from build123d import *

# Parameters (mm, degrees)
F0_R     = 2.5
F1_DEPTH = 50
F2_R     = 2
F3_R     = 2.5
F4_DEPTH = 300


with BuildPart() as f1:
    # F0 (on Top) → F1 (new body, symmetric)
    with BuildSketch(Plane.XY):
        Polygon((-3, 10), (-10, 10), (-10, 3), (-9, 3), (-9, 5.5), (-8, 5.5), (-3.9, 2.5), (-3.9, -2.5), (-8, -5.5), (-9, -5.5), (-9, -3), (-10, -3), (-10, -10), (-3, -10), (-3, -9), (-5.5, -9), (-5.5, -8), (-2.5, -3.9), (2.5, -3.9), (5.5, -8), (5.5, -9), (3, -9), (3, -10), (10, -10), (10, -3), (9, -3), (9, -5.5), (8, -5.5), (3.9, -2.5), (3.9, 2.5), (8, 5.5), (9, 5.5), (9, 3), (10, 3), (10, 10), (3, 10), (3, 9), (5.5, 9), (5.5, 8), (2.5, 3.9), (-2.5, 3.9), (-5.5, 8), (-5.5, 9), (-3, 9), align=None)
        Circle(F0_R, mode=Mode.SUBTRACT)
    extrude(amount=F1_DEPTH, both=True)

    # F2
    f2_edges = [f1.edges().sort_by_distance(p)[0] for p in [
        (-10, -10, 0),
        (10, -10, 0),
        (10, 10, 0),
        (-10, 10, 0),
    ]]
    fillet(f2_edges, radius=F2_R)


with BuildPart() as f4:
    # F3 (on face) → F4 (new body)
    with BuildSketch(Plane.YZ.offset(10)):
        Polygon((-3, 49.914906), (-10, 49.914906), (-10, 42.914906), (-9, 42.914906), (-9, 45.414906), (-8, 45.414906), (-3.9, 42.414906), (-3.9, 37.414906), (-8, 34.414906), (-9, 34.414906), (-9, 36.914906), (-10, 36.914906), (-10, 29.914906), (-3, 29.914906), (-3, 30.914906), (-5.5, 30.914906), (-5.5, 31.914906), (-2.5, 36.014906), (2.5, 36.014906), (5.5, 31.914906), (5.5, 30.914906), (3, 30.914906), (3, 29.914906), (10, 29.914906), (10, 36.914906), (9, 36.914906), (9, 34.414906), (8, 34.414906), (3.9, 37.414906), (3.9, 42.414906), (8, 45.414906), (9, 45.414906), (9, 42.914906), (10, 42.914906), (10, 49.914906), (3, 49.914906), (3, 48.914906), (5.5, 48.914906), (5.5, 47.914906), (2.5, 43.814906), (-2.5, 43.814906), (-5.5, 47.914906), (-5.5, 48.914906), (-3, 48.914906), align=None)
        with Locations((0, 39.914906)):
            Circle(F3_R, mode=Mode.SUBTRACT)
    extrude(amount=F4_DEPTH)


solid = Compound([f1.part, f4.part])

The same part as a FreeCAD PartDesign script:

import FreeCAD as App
import Part
import Sketcher
from FreeCAD import Vector


def edges_at(feature, points):
    """Names of the edges that pass closest to the given points."""
    edges = feature.Shape.Edges
    near = lambda p: min(range(len(edges)), key=lambda i: edges[i].distToShape(Part.Vertex(*p))[0])
    return sorted({f"Edge{near(p) + 1}" for p in points})

doc = App.newDocument("Part")
body = doc.addObject("PartDesign::Body", "Body")

# Sketch on XY plane
sketch1 = body.newObject("Sketcher::SketchObject", "Sketch")
sketch1.AttachmentSupport = (doc.getObject("XY_Plane"), [""])
sketch1.MapMode = "FlatFace"
sketch1.addGeometry(Part.LineSegment(Vector(-3, 10, 0), Vector(-10, 10, 0)), False)
sketch1.addGeometry(Part.LineSegment(Vector(-10, 10, 0), Vector(-10, 3, 0)), False)
sketch1.addGeometry(Part.LineSegment(Vector(-10, 3, 0), Vector(-9, 3, 0)), False)
sketch1.addGeometry(Part.LineSegment(Vector(-9, 3, 0), Vector(-9, 5.5, 0)), False)
sketch1.addGeometry(Part.LineSegment(Vector(-9, 5.5, 0), Vector(-8, 5.5, 0)), False)
sketch1.addGeometry(Part.LineSegment(Vector(-8, 5.5, 0), Vector(-3.9, 2.5, 0)), False)
sketch1.addGeometry(Part.LineSegment(Vector(-3.9, 2.5, 0), Vector(-3.9, -2.5, 0)), False)
sketch1.addGeometry(Part.LineSegment(Vector(-3.9, -2.5, 0), Vector(-8, -5.5, 0)), False)
sketch1.addGeometry(Part.LineSegment(Vector(-8, -5.5, 0), Vector(-9, -5.5, 0)), False)
sketch1.addGeometry(Part.LineSegment(Vector(-9, -5.5, 0), Vector(-9, -3, 0)), False)
sketch1.addGeometry(Part.LineSegment(Vector(-9, -3, 0), Vector(-10, -3, 0)), False)
sketch1.addGeometry(Part.LineSegment(Vector(-10, -3, 0), Vector(-10, -10, 0)), False)
sketch1.addGeometry(Part.LineSegment(Vector(-10, -10, 0), Vector(-3, -10, 0)), False)
sketch1.addGeometry(Part.LineSegment(Vector(-3, -10, 0), Vector(-3, -9, 0)), False)
sketch1.addGeometry(Part.LineSegment(Vector(-3, -9, 0), Vector(-5.5, -9, 0)), False)
sketch1.addGeometry(Part.LineSegment(Vector(-5.5, -9, 0), Vector(-5.5, -8, 0)), False)
sketch1.addGeometry(Part.LineSegment(Vector(-5.5, -8, 0), Vector(-2.5, -3.9, 0)), False)
sketch1.addGeometry(Part.LineSegment(Vector(-2.5, -3.9, 0), Vector(2.5, -3.9, 0)), False)
sketch1.addGeometry(Part.LineSegment(Vector(2.5, -3.9, 0), Vector(5.5, -8, 0)), False)
sketch1.addGeometry(Part.LineSegment(Vector(5.5, -8, 0), Vector(5.5, -9, 0)), False)
sketch1.addGeometry(Part.LineSegment(Vector(5.5, -9, 0), Vector(3, -9, 0)), False)
sketch1.addGeometry(Part.LineSegment(Vector(3, -9, 0), Vector(3, -10, 0)), False)
sketch1.addGeometry(Part.LineSegment(Vector(3, -10, 0), Vector(10, -10, 0)), False)
sketch1.addGeometry(Part.LineSegment(Vector(10, -10, 0), Vector(10, -3, 0)), False)
sketch1.addGeometry(Part.LineSegment(Vector(10, -3, 0), Vector(9, -3, 0)), False)
sketch1.addGeometry(Part.LineSegment(Vector(9, -3, 0), Vector(9, -5.5, 0)), False)
sketch1.addGeometry(Part.LineSegment(Vector(9, -5.5, 0), Vector(8, -5.5, 0)), False)
sketch1.addGeometry(Part.LineSegment(Vector(8, -5.5, 0), Vector(3.9, -2.5, 0)), False)
sketch1.addGeometry(Part.LineSegment(Vector(3.9, -2.5, 0), Vector(3.9, 2.5, 0)), False)
sketch1.addGeometry(Part.LineSegment(Vector(3.9, 2.5, 0), Vector(8, 5.5, 0)), False)
sketch1.addGeometry(Part.LineSegment(Vector(8, 5.5, 0), Vector(9, 5.5, 0)), False)
sketch1.addGeometry(Part.LineSegment(Vector(9, 5.5, 0), Vector(9, 3, 0)), False)
sketch1.addGeometry(Part.LineSegment(Vector(9, 3, 0), Vector(10, 3, 0)), False)
sketch1.addGeometry(Part.LineSegment(Vector(10, 3, 0), Vector(10, 10, 0)), False)
sketch1.addGeometry(Part.LineSegment(Vector(10, 10, 0), Vector(3, 10, 0)), False)
sketch1.addGeometry(Part.LineSegment(Vector(3, 10, 0), Vector(3, 9, 0)), False)
sketch1.addGeometry(Part.LineSegment(Vector(3, 9, 0), Vector(5.5, 9, 0)), False)
sketch1.addGeometry(Part.LineSegment(Vector(5.5, 9, 0), Vector(5.5, 8, 0)), False)
sketch1.addGeometry(Part.LineSegment(Vector(5.5, 8, 0), Vector(2.5, 3.9, 0)), False)
sketch1.addGeometry(Part.LineSegment(Vector(2.5, 3.9, 0), Vector(-2.5, 3.9, 0)), False)
sketch1.addGeometry(Part.LineSegment(Vector(-2.5, 3.9, 0), Vector(-5.5, 8, 0)), False)
sketch1.addGeometry(Part.LineSegment(Vector(-5.5, 8, 0), Vector(-5.5, 9, 0)), False)
sketch1.addGeometry(Part.LineSegment(Vector(-5.5, 9, 0), Vector(-3, 9, 0)), False)
sketch1.addGeometry(Part.LineSegment(Vector(-3, 9, 0), Vector(-3, 10, 0)), False)
sketch1.addGeometry(Part.Circle(Vector(0, 0, 0), Vector(0, 0, 1), 2.5), False)
sketch1.addConstraint(Sketcher.Constraint("Coincident", 0, 2, 1, 1))
sketch1.addConstraint(Sketcher.Constraint("Coincident", 1, 2, 2, 1))
sketch1.addConstraint(Sketcher.Constraint("Coincident", 2, 2, 3, 1))
sketch1.addConstraint(Sketcher.Constraint("Coincident", 3, 2, 4, 1))
sketch1.addConstraint(Sketcher.Constraint("Coincident", 4, 2, 5, 1))
sketch1.addConstraint(Sketcher.Constraint("Coincident", 5, 2, 6, 1))
sketch1.addConstraint(Sketcher.Constraint("Coincident", 6, 2, 7, 1))
sketch1.addConstraint(Sketcher.Constraint("Coincident", 7, 2, 8, 1))
sketch1.addConstraint(Sketcher.Constraint("Coincident", 8, 2, 9, 1))
sketch1.addConstraint(Sketcher.Constraint("Coincident", 9, 2, 10, 1))
sketch1.addConstraint(Sketcher.Constraint("Coincident", 10, 2, 11, 1))
sketch1.addConstraint(Sketcher.Constraint("Coincident", 11, 2, 12, 1))
sketch1.addConstraint(Sketcher.Constraint("Coincident", 12, 2, 13, 1))
sketch1.addConstraint(Sketcher.Constraint("Coincident", 13, 2, 14, 1))
sketch1.addConstraint(Sketcher.Constraint("Coincident", 14, 2, 15, 1))
sketch1.addConstraint(Sketcher.Constraint("Coincident", 15, 2, 16, 1))
sketch1.addConstraint(Sketcher.Constraint("Coincident", 16, 2, 17, 1))
sketch1.addConstraint(Sketcher.Constraint("Coincident", 17, 2, 18, 1))
sketch1.addConstraint(Sketcher.Constraint("Coincident", 18, 2, 19, 1))
sketch1.addConstraint(Sketcher.Constraint("Coincident", 19, 2, 20, 1))
sketch1.addConstraint(Sketcher.Constraint("Coincident", 20, 2, 21, 1))
sketch1.addConstraint(Sketcher.Constraint("Coincident", 21, 2, 22, 1))
sketch1.addConstraint(Sketcher.Constraint("Coincident", 22, 2, 23, 1))
sketch1.addConstraint(Sketcher.Constraint("Coincident", 23, 2, 24, 1))
sketch1.addConstraint(Sketcher.Constraint("Coincident", 24, 2, 25, 1))
sketch1.addConstraint(Sketcher.Constraint("Coincident", 25, 2, 26, 1))
sketch1.addConstraint(Sketcher.Constraint("Coincident", 26, 2, 27, 1))
sketch1.addConstraint(Sketcher.Constraint("Coincident", 27, 2, 28, 1))
sketch1.addConstraint(Sketcher.Constraint("Coincident", 28, 2, 29, 1))
sketch1.addConstraint(Sketcher.Constraint("Coincident", 29, 2, 30, 1))
sketch1.addConstraint(Sketcher.Constraint("Coincident", 30, 2, 31, 1))
sketch1.addConstraint(Sketcher.Constraint("Coincident", 31, 2, 32, 1))
sketch1.addConstraint(Sketcher.Constraint("Coincident", 32, 2, 33, 1))
sketch1.addConstraint(Sketcher.Constraint("Coincident", 33, 2, 34, 1))
sketch1.addConstraint(Sketcher.Constraint("Coincident", 34, 2, 35, 1))
sketch1.addConstraint(Sketcher.Constraint("Coincident", 35, 2, 36, 1))
sketch1.addConstraint(Sketcher.Constraint("Coincident", 36, 2, 37, 1))
sketch1.addConstraint(Sketcher.Constraint("Coincident", 37, 2, 38, 1))
sketch1.addConstraint(Sketcher.Constraint("Coincident", 38, 2, 39, 1))
sketch1.addConstraint(Sketcher.Constraint("Coincident", 39, 2, 40, 1))
sketch1.addConstraint(Sketcher.Constraint("Coincident", 40, 2, 41, 1))
sketch1.addConstraint(Sketcher.Constraint("Coincident", 41, 2, 42, 1))
sketch1.addConstraint(Sketcher.Constraint("Coincident", 42, 2, 43, 1))
sketch1.addConstraint(Sketcher.Constraint("Coincident", 43, 2, 0, 1))
sketch1.addConstraint(Sketcher.Constraint("Horizontal", 0))
sketch1.addConstraint(Sketcher.Constraint("Vertical", 1))
sketch1.addConstraint(Sketcher.Constraint("Horizontal", 2))
sketch1.addConstraint(Sketcher.Constraint("Vertical", 3))
sketch1.addConstraint(Sketcher.Constraint("Horizontal", 4))
sketch1.addConstraint(Sketcher.Constraint("Vertical", 6))
sketch1.addConstraint(Sketcher.Constraint("Horizontal", 8))
sketch1.addConstraint(Sketcher.Constraint("Vertical", 9))
sketch1.addConstraint(Sketcher.Constraint("Horizontal", 10))
sketch1.addConstraint(Sketcher.Constraint("Vertical", 11))
sketch1.addConstraint(Sketcher.Constraint("Horizontal", 12))
sketch1.addConstraint(Sketcher.Constraint("Vertical", 13))
sketch1.addConstraint(Sketcher.Constraint("Horizontal", 14))
sketch1.addConstraint(Sketcher.Constraint("Vertical", 15))
sketch1.addConstraint(Sketcher.Constraint("Horizontal", 17))
sketch1.addConstraint(Sketcher.Constraint("Vertical", 19))
sketch1.addConstraint(Sketcher.Constraint("Horizontal", 20))
sketch1.addConstraint(Sketcher.Constraint("Vertical", 21))
sketch1.addConstraint(Sketcher.Constraint("Horizontal", 22))
sketch1.addConstraint(Sketcher.Constraint("Vertical", 23))
sketch1.addConstraint(Sketcher.Constraint("Horizontal", 24))
sketch1.addConstraint(Sketcher.Constraint("Vertical", 25))
sketch1.addConstraint(Sketcher.Constraint("Horizontal", 26))
sketch1.addConstraint(Sketcher.Constraint("Vertical", 28))
sketch1.addConstraint(Sketcher.Constraint("Horizontal", 30))
sketch1.addConstraint(Sketcher.Constraint("Vertical", 31))
sketch1.addConstraint(Sketcher.Constraint("Horizontal", 32))
sketch1.addConstraint(Sketcher.Constraint("Vertical", 33))
sketch1.addConstraint(Sketcher.Constraint("Horizontal", 34))
sketch1.addConstraint(Sketcher.Constraint("Vertical", 35))
sketch1.addConstraint(Sketcher.Constraint("Horizontal", 36))
sketch1.addConstraint(Sketcher.Constraint("Vertical", 37))
sketch1.addConstraint(Sketcher.Constraint("Horizontal", 39))
sketch1.addConstraint(Sketcher.Constraint("Vertical", 41))
sketch1.addConstraint(Sketcher.Constraint("Horizontal", 42))
sketch1.addConstraint(Sketcher.Constraint("Vertical", 43))
sketch1.addConstraint(Sketcher.Constraint("Coincident", 44, 3, -1, 1))
sketch1.addConstraint(Sketcher.Constraint("Symmetric", 0, 2, 22, 2, -1, 1))
sketch1.addConstraint(Sketcher.Constraint("Symmetric", 2, 2, 24, 2, -1, 1))
sketch1.addConstraint(Sketcher.Constraint("Symmetric", 4, 2, 26, 2, -1, 1))
sketch1.addConstraint(Sketcher.Constraint("Symmetric", 5, 2, 27, 2, -1, 1))
sketch1.addConstraint(Sketcher.Constraint("Symmetric", 7, 2, 29, 2, -1, 1))
sketch1.addConstraint(Sketcher.Constraint("Symmetric", 9, 2, 31, 2, -1, 1))
sketch1.addConstraint(Sketcher.Constraint("Symmetric", 11, 2, 33, 2, -1, 1))
sketch1.addConstraint(Sketcher.Constraint("Symmetric", 13, 2, 35, 2, -1, 1))
sketch1.addConstraint(Sketcher.Constraint("Symmetric", 15, 2, 37, 2, -1, 1))
sketch1.addConstraint(Sketcher.Constraint("Symmetric", 16, 2, 38, 2, -1, 1))
sketch1.addConstraint(Sketcher.Constraint("Symmetric", 18, 2, 40, 2, -1, 1))
sketch1.addConstraint(Sketcher.Constraint("Symmetric", 20, 2, 42, 2, -1, 1))
sketch1.addConstraint(Sketcher.Constraint("Symmetric", 15, 2, 18, 2, -2))
sketch1.addConstraint(Sketcher.Constraint("Symmetric", 13, 2, 20, 2, -2))
sketch1.addConstraint(Sketcher.Constraint("Symmetric", 11, 2, 22, 2, -2))
sketch1.addConstraint(Sketcher.Constraint("Symmetric", 9, 2, 24, 2, -2))
sketch1.addConstraint(Sketcher.Constraint("Symmetric", 7, 2, 26, 2, -2))
sketch1.addConstraint(Sketcher.Constraint("Perpendicular", 5, 16))
sketch1.addConstraint(Sketcher.Constraint("Perpendicular", 7, 18))
sketch1.addConstraint(Sketcher.Constraint("Perpendicular", 18, 29))
sketch1.addConstraint(Sketcher.Constraint("Perpendicular", 29, 40))
sketch1.addConstraint(Sketcher.Constraint("Horizontal", 6, 2, 27, 2))
sketch1.addConstraint(Sketcher.Constraint("Equal", 2, 4))
sketch1.addConstraint(Sketcher.Constraint("Equal", 34, 1))
sketch1.addConstraint(Sketcher.Constraint("Equal", 42, 3))
sketch1.addConstraint(Sketcher.Constraint("Equal", 39, 6))
sketch1.addConstraint(Sketcher.Constraint("Equal", 32, 13))
sketch1.addConstraint(Sketcher.Constraint("Equal", 13, 15))
sketch1.addConstraint(Sketcher.Constraint("Equal", 7, 16))
sketch1.addConstraint(Sketcher.Constraint("Diameter", 44, 5.0))
sketch1.addConstraint(Sketcher.Constraint("DistanceX", 0, 2, 0, 1, 7.0))
sketch1.addConstraint(Sketcher.Constraint("DistanceX", 2, 1, 2, 2, 1.0))
sketch1.addConstraint(Sketcher.Constraint("DistanceX", 17, 1, 17, 2, 5.0))
sketch1.addConstraint(Sketcher.Constraint("DistanceX", 14, 2, 14, 1, 2.5))
sketch1.addConstraint(Sketcher.Constraint("DistanceX", 0, 2, -1, 1, 10.0))
sketch1.addConstraint(Sketcher.Constraint("DistanceX", 5, 2, -1, 1, 3.9))
pad1 = body.newObject("PartDesign::Pad", "Pad")
pad1.Profile = sketch1
pad1.Length = 100
pad1.Midplane = True
doc.recompute()

fillet = body.newObject("PartDesign::Fillet", "Fillet")
fillet.Base = (pad1, edges_at(pad1, [
    (-10, -10, 0),
    (10, -10, 0),
    (10, 10, 0),
    (-10, 10, 0),
]))
fillet.Radius = 2
body2 = doc.addObject("PartDesign::Body", "Body001")

# Sketch on YZ plane
sketch2 = body2.newObject("Sketcher::SketchObject", "Sketch001")
sketch2.AttachmentSupport = (doc.getObject("YZ_Plane001"), [""])
sketch2.MapMode = "FlatFace"
sketch2.AttachmentOffset = App.Placement(Vector(0, 0, 10), App.Rotation())
sketch2.addGeometry(Part.LineSegment(Vector(-3, 49.9, 0), Vector(-10, 49.9, 0)), False)
sketch2.addGeometry(Part.LineSegment(Vector(-10, 49.9, 0), Vector(-10, 42.9, 0)), False)
sketch2.addGeometry(Part.LineSegment(Vector(-10, 42.9, 0), Vector(-9, 42.9, 0)), False)
sketch2.addGeometry(Part.LineSegment(Vector(-9, 42.9, 0), Vector(-9, 45.4, 0)), False)
sketch2.addGeometry(Part.LineSegment(Vector(-9, 45.4, 0), Vector(-8, 45.4, 0)), False)
sketch2.addGeometry(Part.LineSegment(Vector(-8, 45.4, 0), Vector(-3.9, 42.4, 0)), False)
sketch2.addGeometry(Part.LineSegment(Vector(-3.9, 42.4, 0), Vector(-3.9, 37.4, 0)), False)
sketch2.addGeometry(Part.LineSegment(Vector(-3.9, 37.4, 0), Vector(-8, 34.4, 0)), False)
sketch2.addGeometry(Part.LineSegment(Vector(-8, 34.4, 0), Vector(-9, 34.4, 0)), False)
sketch2.addGeometry(Part.LineSegment(Vector(-9, 34.4, 0), Vector(-9, 36.9, 0)), False)
sketch2.addGeometry(Part.LineSegment(Vector(-9, 36.9, 0), Vector(-10, 36.9, 0)), False)
sketch2.addGeometry(Part.LineSegment(Vector(-10, 36.9, 0), Vector(-10, 29.9, 0)), False)
sketch2.addGeometry(Part.LineSegment(Vector(-10, 29.9, 0), Vector(-3, 29.9, 0)), False)
sketch2.addGeometry(Part.LineSegment(Vector(-3, 29.9, 0), Vector(-3, 30.9, 0)), False)
sketch2.addGeometry(Part.LineSegment(Vector(-3, 30.9, 0), Vector(-5.5, 30.9, 0)), False)
sketch2.addGeometry(Part.LineSegment(Vector(-5.5, 30.9, 0), Vector(-5.5, 31.9, 0)), False)
sketch2.addGeometry(Part.LineSegment(Vector(-5.5, 31.9, 0), Vector(-2.5, 36, 0)), False)
sketch2.addGeometry(Part.LineSegment(Vector(-2.5, 36, 0), Vector(2.5, 36, 0)), False)
sketch2.addGeometry(Part.LineSegment(Vector(2.5, 36, 0), Vector(5.5, 31.9, 0)), False)
sketch2.addGeometry(Part.LineSegment(Vector(5.5, 31.9, 0), Vector(5.5, 30.9, 0)), False)
sketch2.addGeometry(Part.LineSegment(Vector(5.5, 30.9, 0), Vector(3, 30.9, 0)), False)
sketch2.addGeometry(Part.LineSegment(Vector(3, 30.9, 0), Vector(3, 29.9, 0)), False)
sketch2.addGeometry(Part.LineSegment(Vector(3, 29.9, 0), Vector(10, 29.9, 0)), False)
sketch2.addGeometry(Part.LineSegment(Vector(10, 29.9, 0), Vector(10, 36.9, 0)), False)
sketch2.addGeometry(Part.LineSegment(Vector(10, 36.9, 0), Vector(9, 36.9, 0)), False)
sketch2.addGeometry(Part.LineSegment(Vector(9, 36.9, 0), Vector(9, 34.4, 0)), False)
sketch2.addGeometry(Part.LineSegment(Vector(9, 34.4, 0), Vector(8, 34.4, 0)), False)
sketch2.addGeometry(Part.LineSegment(Vector(8, 34.4, 0), Vector(3.9, 37.4, 0)), False)
sketch2.addGeometry(Part.LineSegment(Vector(3.9, 37.4, 0), Vector(3.9, 42.4, 0)), False)
sketch2.addGeometry(Part.LineSegment(Vector(3.9, 42.4, 0), Vector(8, 45.4, 0)), False)
sketch2.addGeometry(Part.LineSegment(Vector(8, 45.4, 0), Vector(9, 45.4, 0)), False)
sketch2.addGeometry(Part.LineSegment(Vector(9, 45.4, 0), Vector(9, 42.9, 0)), False)
sketch2.addGeometry(Part.LineSegment(Vector(9, 42.9, 0), Vector(10, 42.9, 0)), False)
sketch2.addGeometry(Part.LineSegment(Vector(10, 42.9, 0), Vector(10, 49.9, 0)), False)
sketch2.addGeometry(Part.LineSegment(Vector(10, 49.9, 0), Vector(3, 49.9, 0)), False)
sketch2.addGeometry(Part.LineSegment(Vector(3, 49.9, 0), Vector(3, 48.9, 0)), False)
sketch2.addGeometry(Part.LineSegment(Vector(3, 48.9, 0), Vector(5.5, 48.9, 0)), False)
sketch2.addGeometry(Part.LineSegment(Vector(5.5, 48.9, 0), Vector(5.5, 47.9, 0)), False)
sketch2.addGeometry(Part.LineSegment(Vector(5.5, 47.9, 0), Vector(2.5, 43.8, 0)), False)
sketch2.addGeometry(Part.LineSegment(Vector(2.5, 43.8, 0), Vector(-2.5, 43.8, 0)), False)
sketch2.addGeometry(Part.LineSegment(Vector(-2.5, 43.8, 0), Vector(-5.5, 47.9, 0)), False)
sketch2.addGeometry(Part.LineSegment(Vector(-5.5, 47.9, 0), Vector(-5.5, 48.9, 0)), False)
sketch2.addGeometry(Part.LineSegment(Vector(-5.5, 48.9, 0), Vector(-3, 48.9, 0)), False)
sketch2.addGeometry(Part.LineSegment(Vector(-3, 48.9, 0), Vector(-3, 49.9, 0)), False)
sketch2.addGeometry(Part.Circle(Vector(0, 39.9, 0), Vector(0, 0, 1), 2.5), False)
sketch2.addConstraint(Sketcher.Constraint("Coincident", 0, 2, 1, 1))
sketch2.addConstraint(Sketcher.Constraint("Coincident", 1, 2, 2, 1))
sketch2.addConstraint(Sketcher.Constraint("Coincident", 2, 2, 3, 1))
sketch2.addConstraint(Sketcher.Constraint("Coincident", 3, 2, 4, 1))
sketch2.addConstraint(Sketcher.Constraint("Coincident", 4, 2, 5, 1))
sketch2.addConstraint(Sketcher.Constraint("Coincident", 5, 2, 6, 1))
sketch2.addConstraint(Sketcher.Constraint("Coincident", 6, 2, 7, 1))
sketch2.addConstraint(Sketcher.Constraint("Coincident", 7, 2, 8, 1))
sketch2.addConstraint(Sketcher.Constraint("Coincident", 8, 2, 9, 1))
sketch2.addConstraint(Sketcher.Constraint("Coincident", 9, 2, 10, 1))
sketch2.addConstraint(Sketcher.Constraint("Coincident", 10, 2, 11, 1))
sketch2.addConstraint(Sketcher.Constraint("Coincident", 11, 2, 12, 1))
sketch2.addConstraint(Sketcher.Constraint("Coincident", 12, 2, 13, 1))
sketch2.addConstraint(Sketcher.Constraint("Coincident", 13, 2, 14, 1))
sketch2.addConstraint(Sketcher.Constraint("Coincident", 14, 2, 15, 1))
sketch2.addConstraint(Sketcher.Constraint("Coincident", 15, 2, 16, 1))
sketch2.addConstraint(Sketcher.Constraint("Coincident", 16, 2, 17, 1))
sketch2.addConstraint(Sketcher.Constraint("Coincident", 17, 2, 18, 1))
sketch2.addConstraint(Sketcher.Constraint("Coincident", 18, 2, 19, 1))
sketch2.addConstraint(Sketcher.Constraint("Coincident", 19, 2, 20, 1))
sketch2.addConstraint(Sketcher.Constraint("Coincident", 20, 2, 21, 1))
sketch2.addConstraint(Sketcher.Constraint("Coincident", 21, 2, 22, 1))
sketch2.addConstraint(Sketcher.Constraint("Coincident", 22, 2, 23, 1))
sketch2.addConstraint(Sketcher.Constraint("Coincident", 23, 2, 24, 1))
sketch2.addConstraint(Sketcher.Constraint("Coincident", 24, 2, 25, 1))
sketch2.addConstraint(Sketcher.Constraint("Coincident", 25, 2, 26, 1))
sketch2.addConstraint(Sketcher.Constraint("Coincident", 26, 2, 27, 1))
sketch2.addConstraint(Sketcher.Constraint("Coincident", 27, 2, 28, 1))
sketch2.addConstraint(Sketcher.Constraint("Coincident", 28, 2, 29, 1))
sketch2.addConstraint(Sketcher.Constraint("Coincident", 29, 2, 30, 1))
sketch2.addConstraint(Sketcher.Constraint("Coincident", 30, 2, 31, 1))
sketch2.addConstraint(Sketcher.Constraint("Coincident", 31, 2, 32, 1))
sketch2.addConstraint(Sketcher.Constraint("Coincident", 32, 2, 33, 1))
sketch2.addConstraint(Sketcher.Constraint("Coincident", 33, 2, 34, 1))
sketch2.addConstraint(Sketcher.Constraint("Coincident", 34, 2, 35, 1))
sketch2.addConstraint(Sketcher.Constraint("Coincident", 35, 2, 36, 1))
sketch2.addConstraint(Sketcher.Constraint("Coincident", 36, 2, 37, 1))
sketch2.addConstraint(Sketcher.Constraint("Coincident", 37, 2, 38, 1))
sketch2.addConstraint(Sketcher.Constraint("Coincident", 38, 2, 39, 1))
sketch2.addConstraint(Sketcher.Constraint("Coincident", 39, 2, 40, 1))
sketch2.addConstraint(Sketcher.Constraint("Coincident", 40, 2, 41, 1))
sketch2.addConstraint(Sketcher.Constraint("Coincident", 41, 2, 42, 1))
sketch2.addConstraint(Sketcher.Constraint("Coincident", 42, 2, 43, 1))
sketch2.addConstraint(Sketcher.Constraint("Coincident", 43, 2, 0, 1))
sketch2.addConstraint(Sketcher.Constraint("Horizontal", 0))
sketch2.addConstraint(Sketcher.Constraint("Vertical", 1))
sketch2.addConstraint(Sketcher.Constraint("Horizontal", 2))
sketch2.addConstraint(Sketcher.Constraint("Vertical", 3))
sketch2.addConstraint(Sketcher.Constraint("Horizontal", 4))
sketch2.addConstraint(Sketcher.Constraint("Vertical", 6))
sketch2.addConstraint(Sketcher.Constraint("Horizontal", 8))
sketch2.addConstraint(Sketcher.Constraint("Vertical", 9))
sketch2.addConstraint(Sketcher.Constraint("Horizontal", 10))
sketch2.addConstraint(Sketcher.Constraint("Vertical", 11))
sketch2.addConstraint(Sketcher.Constraint("Horizontal", 12))
sketch2.addConstraint(Sketcher.Constraint("Vertical", 13))
sketch2.addConstraint(Sketcher.Constraint("Horizontal", 14))
sketch2.addConstraint(Sketcher.Constraint("Vertical", 15))
sketch2.addConstraint(Sketcher.Constraint("Horizontal", 17))
sketch2.addConstraint(Sketcher.Constraint("Vertical", 19))
sketch2.addConstraint(Sketcher.Constraint("Horizontal", 20))
sketch2.addConstraint(Sketcher.Constraint("Vertical", 21))
sketch2.addConstraint(Sketcher.Constraint("Horizontal", 22))
sketch2.addConstraint(Sketcher.Constraint("Vertical", 23))
sketch2.addConstraint(Sketcher.Constraint("Horizontal", 24))
sketch2.addConstraint(Sketcher.Constraint("Vertical", 25))
sketch2.addConstraint(Sketcher.Constraint("Horizontal", 26))
sketch2.addConstraint(Sketcher.Constraint("Vertical", 28))
sketch2.addConstraint(Sketcher.Constraint("Horizontal", 30))
sketch2.addConstraint(Sketcher.Constraint("Vertical", 31))
sketch2.addConstraint(Sketcher.Constraint("Horizontal", 32))
sketch2.addConstraint(Sketcher.Constraint("Vertical", 33))
sketch2.addConstraint(Sketcher.Constraint("Horizontal", 34))
sketch2.addConstraint(Sketcher.Constraint("Vertical", 35))
sketch2.addConstraint(Sketcher.Constraint("Horizontal", 36))
sketch2.addConstraint(Sketcher.Constraint("Vertical", 37))
sketch2.addConstraint(Sketcher.Constraint("Horizontal", 39))
sketch2.addConstraint(Sketcher.Constraint("Vertical", 41))
sketch2.addConstraint(Sketcher.Constraint("Horizontal", 42))
sketch2.addConstraint(Sketcher.Constraint("Vertical", 43))
sketch2.addConstraint(Sketcher.Constraint("Symmetric", 15, 2, 18, 2, -2))
sketch2.addConstraint(Sketcher.Constraint("Symmetric", 13, 2, 20, 2, -2))
sketch2.addConstraint(Sketcher.Constraint("Symmetric", 11, 2, 22, 2, -2))
sketch2.addConstraint(Sketcher.Constraint("Symmetric", 9, 2, 24, 2, -2))
sketch2.addConstraint(Sketcher.Constraint("Symmetric", 7, 2, 26, 2, -2))
sketch2.addConstraint(Sketcher.Constraint("Symmetric", 6, 2, 27, 2, -2))
sketch2.addConstraint(Sketcher.Constraint("Symmetric", 4, 2, 29, 2, -2))
sketch2.addConstraint(Sketcher.Constraint("Symmetric", 2, 2, 31, 2, -2))
sketch2.addConstraint(Sketcher.Constraint("Symmetric", 0, 2, 33, 2, -2))
sketch2.addConstraint(Sketcher.Constraint("Symmetric", 37, 2, 40, 2, -2))
sketch2.addConstraint(Sketcher.Constraint("Symmetric", 35, 2, 42, 2, -2))
sketch2.addConstraint(Sketcher.Constraint("PointOnObject", 44, 3, -2))
sketch2.addConstraint(Sketcher.Constraint("Perpendicular", 5, 16))
sketch2.addConstraint(Sketcher.Constraint("Perpendicular", 7, 18))
sketch2.addConstraint(Sketcher.Constraint("Perpendicular", 16, 27))
sketch2.addConstraint(Sketcher.Constraint("Perpendicular", 18, 29))
sketch2.addConstraint(Sketcher.Constraint("Perpendicular", 27, 38))
sketch2.addConstraint(Sketcher.Constraint("Perpendicular", 29, 40))
sketch2.addConstraint(Sketcher.Constraint("Vertical", 4, 2, 7, 2))
sketch2.addConstraint(Sketcher.Constraint("Vertical", 3, 2, 8, 2))
sketch2.addConstraint(Sketcher.Constraint("Vertical", 1, 2, 10, 2))
sketch2.addConstraint(Sketcher.Constraint("Vertical", 21, 2, 34, 2))
sketch2.addConstraint(Sketcher.Constraint("Vertical", 19, 2, 36, 2))
sketch2.addConstraint(Sketcher.Constraint("Vertical", 17, 2, 38, 2))
sketch2.addConstraint(Sketcher.Constraint("Equal", 2, 4))
sketch2.addConstraint(Sketcher.Constraint("Equal", 34, 1))
sketch2.addConstraint(Sketcher.Constraint("Equal", 42, 3))
sketch2.addConstraint(Sketcher.Constraint("Equal", 39, 6))
sketch2.addConstraint(Sketcher.Constraint("Equal", 3, 9))
sketch2.addConstraint(Sketcher.Constraint("Equal", 1, 11))
sketch2.addConstraint(Sketcher.Constraint("Equal", 32, 13))
sketch2.addConstraint(Sketcher.Constraint("Equal", 13, 15))
sketch2.addConstraint(Sketcher.Constraint("Equal", 21, 35))
sketch2.addConstraint(Sketcher.Constraint("Equal", 35, 37))
sketch2.addConstraint(Sketcher.Constraint("Equal", 7, 16))
sketch2.addConstraint(Sketcher.Constraint("Diameter", 44, 5.0))
sketch2.addConstraint(Sketcher.Constraint("DistanceX", 0, 2, 0, 1, 7.0))
sketch2.addConstraint(Sketcher.Constraint("DistanceX", 2, 1, 2, 2, 1.0))
sketch2.addConstraint(Sketcher.Constraint("DistanceX", 17, 1, 17, 2, 5.0))
sketch2.addConstraint(Sketcher.Constraint("DistanceX", 14, 2, 14, 1, 2.5))
sketch2.addConstraint(Sketcher.Constraint("DistanceX", 0, 2, -1, 1, 10.0))
sketch2.addConstraint(Sketcher.Constraint("DistanceY", 44, 3, 0, 2, 10.0))
sketch2.addConstraint(Sketcher.Constraint("DistanceX", 5, 2, -1, 1, 3.9))
sketch2.addConstraint(Sketcher.Constraint("DistanceY", -1, 1, 44, 3, 39.914906))
pad2 = body2.newObject("PartDesign::Pad", "Pad001")
pad2.Profile = sketch2
pad2.Length = 300

doc.recompute()
